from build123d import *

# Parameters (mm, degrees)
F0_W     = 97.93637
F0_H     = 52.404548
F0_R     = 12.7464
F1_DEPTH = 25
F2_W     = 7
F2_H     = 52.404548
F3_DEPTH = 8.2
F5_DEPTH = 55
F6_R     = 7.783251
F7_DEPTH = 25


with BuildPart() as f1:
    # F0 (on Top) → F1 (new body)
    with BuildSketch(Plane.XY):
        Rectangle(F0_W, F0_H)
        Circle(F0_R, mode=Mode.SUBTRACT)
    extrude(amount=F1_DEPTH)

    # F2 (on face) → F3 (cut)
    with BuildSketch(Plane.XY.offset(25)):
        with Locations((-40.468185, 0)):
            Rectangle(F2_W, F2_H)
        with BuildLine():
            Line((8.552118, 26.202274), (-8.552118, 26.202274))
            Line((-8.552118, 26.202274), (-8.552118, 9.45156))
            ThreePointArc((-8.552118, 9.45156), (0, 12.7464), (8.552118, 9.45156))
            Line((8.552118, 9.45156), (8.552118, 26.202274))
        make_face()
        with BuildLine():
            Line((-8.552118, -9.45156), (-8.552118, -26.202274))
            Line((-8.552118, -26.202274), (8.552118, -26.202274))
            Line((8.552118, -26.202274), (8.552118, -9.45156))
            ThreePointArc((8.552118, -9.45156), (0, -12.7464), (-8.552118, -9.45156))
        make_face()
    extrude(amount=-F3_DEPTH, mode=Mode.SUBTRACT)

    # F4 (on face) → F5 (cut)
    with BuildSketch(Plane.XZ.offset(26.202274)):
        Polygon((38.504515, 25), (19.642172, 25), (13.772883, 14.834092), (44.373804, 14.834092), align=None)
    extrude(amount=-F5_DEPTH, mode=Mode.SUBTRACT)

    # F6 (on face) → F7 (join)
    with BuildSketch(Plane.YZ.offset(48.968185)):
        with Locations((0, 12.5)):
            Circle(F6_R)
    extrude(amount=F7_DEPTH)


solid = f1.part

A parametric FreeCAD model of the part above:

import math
import FreeCAD as App
import Part
import Sketcher

V = App.Vector
Q = App.Units.Quantity


def add_polygon(sketch, points):
    """Adds a closed chain of lines whose ends are joined by coincident constraints."""
    first, n = sketch.GeometryCount, len(points)
    for a, b in zip(points, points[1:] + points[:1]):
        sketch.addGeometry(Part.LineSegment(App.Vector(*a, 0), App.Vector(*b, 0)), False)
    for i in range(n):
        sketch.addConstraint(Sketcher.Constraint("Coincident", first + i, 2, first + (i + 1) % n, 1))

doc = App.newDocument("Part")
body = doc.addObject("PartDesign::Body", "Body")

# Sketch on XY plane
sketch1 = body.newObject("Sketcher::SketchObject", "Sketch")
sketch1.AttachmentSupport = (doc.getObject("XY_Plane"), [""])
sketch1.MapMode = "FlatFace"
add_polygon(sketch1, [(-49, 26), (-49, -26), (49, -26), (49, 26)])  # lines 0-3
sketch1.addGeometry(Part.Circle(V(0, 0, 0), V(0, 0, 1), 13), False)  # 4
sketch1.addConstraint(Sketcher.Constraint("Vertical", 0))
sketch1.addConstraint(Sketcher.Constraint("Horizontal", 1))
sketch1.addConstraint(Sketcher.Constraint("Vertical", 2))
sketch1.addConstraint(Sketcher.Constraint("Horizontal", 3))
sketch1.addConstraint(Sketcher.Constraint("Coincident", 4, 3, -1, 1))
sketch1.addConstraint(Sketcher.Constraint("Symmetric", 0, 2, 2, 2, -1, 1))
sketch1.addConstraint(Sketcher.Constraint("Diameter", 4, 25.4928))
sketch1.addConstraint(Sketcher.Constraint("DistanceX", 1, 1, 1, 2, 97.93637))
sketch1.addConstraint(Sketcher.Constraint("DistanceY", 0, 2, 0, 1, 52.404548))
pad1 = body.newObject("PartDesign::Pad", "Pad")
pad1.Profile = sketch1
pad1.Length = 25

# Sketch on XY plane
sketch2 = body.newObject("Sketcher::SketchObject", "Sketch001")
sketch2.AttachmentSupport = (doc.getObject("XY_Plane"), [""])
sketch2.MapMode = "FlatFace"
sketch2.AttachmentOffset = App.Placement(V(0, 0, 25), App.Rotation())
add_polygon(sketch2, [(-44, 26), (-44, -26), (-37, -26), (-37, 26)])  # lines 0-3
sketch2.addGeometry(Part.LineSegment(V(9, 26, 0), V(-9, 26, 0)), False)  # 4
sketch2.addGeometry(Part.LineSegment(V(-9, 26, 0), V(-9, 9, 0)), False)  # 5
sketch2.addGeometry(Part.ArcOfCircle(Part.Circle(V(0, 0, 0), V(0, 0, 1), 13), math.radians(48), math.radians(132)), False)  # 6
sketch2.addGeometry(Part.LineSegment(V(9, 9, 0), V(9, 26, 0)), False)  # 7
sketch2.addGeometry(Part.LineSegment(V(-9, -9, 0), V(-9, -26, 0)), False)  # 8
sketch2.addGeometry(Part.LineSegment(V(-9, -26, 0), V(9, -26, 0)), False)  # 9
sketch2.addGeometry(Part.LineSegment(V(9, -26, 0), V(9, -9, 0)), False)  # 10
sketch2.addGeometry(Part.ArcOfCircle(Part.Circle(V(0, 0, 0), V(0, 0, 1), 13), math.radians(-132), math.radians(-48)), False)  # 11
sketch2.addConstraint(Sketcher.Constraint("Coincident", 4, 2, 5, 1))
sketch2.addConstraint(Sketcher.Constraint("Coincident", 5, 2, 6, 2))
sketch2.addConstraint(Sketcher.Constraint("Coincident", 6, 1, 7, 1))
sketch2.addConstraint(Sketcher.Constraint("Coincident", 7, 2, 4, 1))
sketch2.addConstraint(Sketcher.Constraint("Coincident", 8, 2, 9, 1))
sketch2.addConstraint(Sketcher.Constraint("Coincident", 9, 2, 10, 1))
sketch2.addConstraint(Sketcher.Constraint("Coincident", 10, 2, 11, 2))
sketch2.addConstraint(Sketcher.Constraint("Coincident", 11, 1, 8, 1))
sketch2.addConstraint(Sketcher.Constraint("Vertical", 0))
sketch2.addConstraint(Sketcher.Constraint("Horizontal", 1))
sketch2.addConstraint(Sketcher.Constraint("Vertical", 2))
sketch2.addConstraint(Sketcher.Constraint("Horizontal", 3))
sketch2.addConstraint(Sketcher.Constraint("Horizontal", 4))
sketch2.addConstraint(Sketcher.Constraint("Vertical", 5))
sketch2.addConstraint(Sketcher.Constraint("Vertical", 7))
sketch2.addConstraint(Sketcher.Constraint("Vertical", 8))
sketch2.addConstraint(Sketcher.Constraint("Horizontal", 9))
sketch2.addConstraint(Sketcher.Constraint("Vertical", 10))
sketch2.addConstraint(Sketcher.Constraint("Coincident", 6, 3, -1, 1))
sketch2.addConstraint(Sketcher.Constraint("Coincident", 11, 3, -1, 1))
sketch2.addConstraint(Sketcher.Constraint("Equal", 6, 11))
sketch2.addConstraint(Sketcher.Constraint("Symmetric", 7, 2, 8, 2, -1, 1))
sketch2.addConstraint(Sketcher.Constraint("Horizontal", 3, 2, 4, 2))
sketch2.addConstraint(Sketcher.Constraint("Horizontal", 5, 2, 6, 1))
sketch2.addConstraint(Sketcher.Constraint("Horizontal", 1, 2, 8, 2))
sketch2.addConstraint(Sketcher.Constraint("Horizontal", 10, 2, 11, 1))
sketch2.addConstraint(Sketcher.Constraint("DistanceX", 1, 1, 1, 2, 7.0))
sketch2.addConstraint(Sketcher.Constraint("Radius", 6, 12.746399))
sketch2.addConstraint(Sketcher.Constraint("DistanceX", 4, 2, 4, 1, 17.104236))
sketch2.addConstraint(Sketcher.Constraint("DistanceY", 0, 2, 0, 1, 52.404548))
sketch2.addConstraint(Sketcher.Constraint("DistanceX", 0, 2, -1, 1, 43.968185))
pocket1 = body.newObject("PartDesign::Pocket", "Pocket")
pocket1.Profile = sketch2
pocket1.Length = 8.2

# Sketch on XZ plane
sketch3 = body.newObject("Sketcher::SketchObject", "Sketch002")
sketch3.AttachmentSupport = (doc.getObject("XZ_Plane"), [""])
sketch3.MapMode = "FlatFace"
sketch3.AttachmentOffset = App.Placement(V(0, 0, 26.202274), App.Rotation())
add_polygon(sketch3, [(39, 25), (20, 25), (14, 15), (44, 15)])  # lines 0-3
sketch3.addConstraint(Sketcher.Constraint("Horizontal", 0))
sketch3.addConstraint(Sketcher.Constraint("Horizontal", 2))
sketch3.addConstraint(Sketcher.Constraint("Equal", 1, 3))
sketch3.addConstraint(Sketcher.Constraint("Angle", 1, Q("-119.999997 deg")))
sketch3.addConstraint(Sketcher.Constraint("DistanceY", -1, 1, 0, 2, 25.0))
sketch3.addConstraint(Sketcher.Constraint("DistanceX", 2, 1, 2, 2, 30.600921))
sketch3.addConstraint(Sketcher.Constraint("Distance", 1, 11.738579))
sketch3.addConstraint(Sketcher.Constraint("DistanceX", -1, 1, 0, 2, 19.642172))
pocket2 = body.newObject("PartDesign::Pocket", "Pocket001")
pocket2.Profile = sketch3
pocket2.Length = 55

# Sketch on YZ plane
sketch4 = body.newObject("Sketcher::SketchObject", "Sketch003")
sketch4.AttachmentSupport = (doc.getObject("YZ_Plane"), [""])
sketch4.MapMode = "FlatFace"
sketch4.AttachmentOffset = App.Placement(V(0, 0, 48.968185), App.Rotation())
sketch4.addGeometry(Part.Circle(V(0, 12, 0), V(0, 0, 1), 8), False)
sketch4.addConstraint(Sketcher.Constraint("PointOnObject", 0, 3, -2))
sketch4.addConstraint(Sketcher.Constraint("DistanceY", -1, 1, 0, 3, 12.5))
sketch4.addConstraint(Sketcher.Constraint("Diameter", 0, 15.566502))
pad2 = body.newObject("PartDesign::Pad", "Pad001")
pad2.Profile = sketch4
pad2.Length = 25

doc.recompute()
